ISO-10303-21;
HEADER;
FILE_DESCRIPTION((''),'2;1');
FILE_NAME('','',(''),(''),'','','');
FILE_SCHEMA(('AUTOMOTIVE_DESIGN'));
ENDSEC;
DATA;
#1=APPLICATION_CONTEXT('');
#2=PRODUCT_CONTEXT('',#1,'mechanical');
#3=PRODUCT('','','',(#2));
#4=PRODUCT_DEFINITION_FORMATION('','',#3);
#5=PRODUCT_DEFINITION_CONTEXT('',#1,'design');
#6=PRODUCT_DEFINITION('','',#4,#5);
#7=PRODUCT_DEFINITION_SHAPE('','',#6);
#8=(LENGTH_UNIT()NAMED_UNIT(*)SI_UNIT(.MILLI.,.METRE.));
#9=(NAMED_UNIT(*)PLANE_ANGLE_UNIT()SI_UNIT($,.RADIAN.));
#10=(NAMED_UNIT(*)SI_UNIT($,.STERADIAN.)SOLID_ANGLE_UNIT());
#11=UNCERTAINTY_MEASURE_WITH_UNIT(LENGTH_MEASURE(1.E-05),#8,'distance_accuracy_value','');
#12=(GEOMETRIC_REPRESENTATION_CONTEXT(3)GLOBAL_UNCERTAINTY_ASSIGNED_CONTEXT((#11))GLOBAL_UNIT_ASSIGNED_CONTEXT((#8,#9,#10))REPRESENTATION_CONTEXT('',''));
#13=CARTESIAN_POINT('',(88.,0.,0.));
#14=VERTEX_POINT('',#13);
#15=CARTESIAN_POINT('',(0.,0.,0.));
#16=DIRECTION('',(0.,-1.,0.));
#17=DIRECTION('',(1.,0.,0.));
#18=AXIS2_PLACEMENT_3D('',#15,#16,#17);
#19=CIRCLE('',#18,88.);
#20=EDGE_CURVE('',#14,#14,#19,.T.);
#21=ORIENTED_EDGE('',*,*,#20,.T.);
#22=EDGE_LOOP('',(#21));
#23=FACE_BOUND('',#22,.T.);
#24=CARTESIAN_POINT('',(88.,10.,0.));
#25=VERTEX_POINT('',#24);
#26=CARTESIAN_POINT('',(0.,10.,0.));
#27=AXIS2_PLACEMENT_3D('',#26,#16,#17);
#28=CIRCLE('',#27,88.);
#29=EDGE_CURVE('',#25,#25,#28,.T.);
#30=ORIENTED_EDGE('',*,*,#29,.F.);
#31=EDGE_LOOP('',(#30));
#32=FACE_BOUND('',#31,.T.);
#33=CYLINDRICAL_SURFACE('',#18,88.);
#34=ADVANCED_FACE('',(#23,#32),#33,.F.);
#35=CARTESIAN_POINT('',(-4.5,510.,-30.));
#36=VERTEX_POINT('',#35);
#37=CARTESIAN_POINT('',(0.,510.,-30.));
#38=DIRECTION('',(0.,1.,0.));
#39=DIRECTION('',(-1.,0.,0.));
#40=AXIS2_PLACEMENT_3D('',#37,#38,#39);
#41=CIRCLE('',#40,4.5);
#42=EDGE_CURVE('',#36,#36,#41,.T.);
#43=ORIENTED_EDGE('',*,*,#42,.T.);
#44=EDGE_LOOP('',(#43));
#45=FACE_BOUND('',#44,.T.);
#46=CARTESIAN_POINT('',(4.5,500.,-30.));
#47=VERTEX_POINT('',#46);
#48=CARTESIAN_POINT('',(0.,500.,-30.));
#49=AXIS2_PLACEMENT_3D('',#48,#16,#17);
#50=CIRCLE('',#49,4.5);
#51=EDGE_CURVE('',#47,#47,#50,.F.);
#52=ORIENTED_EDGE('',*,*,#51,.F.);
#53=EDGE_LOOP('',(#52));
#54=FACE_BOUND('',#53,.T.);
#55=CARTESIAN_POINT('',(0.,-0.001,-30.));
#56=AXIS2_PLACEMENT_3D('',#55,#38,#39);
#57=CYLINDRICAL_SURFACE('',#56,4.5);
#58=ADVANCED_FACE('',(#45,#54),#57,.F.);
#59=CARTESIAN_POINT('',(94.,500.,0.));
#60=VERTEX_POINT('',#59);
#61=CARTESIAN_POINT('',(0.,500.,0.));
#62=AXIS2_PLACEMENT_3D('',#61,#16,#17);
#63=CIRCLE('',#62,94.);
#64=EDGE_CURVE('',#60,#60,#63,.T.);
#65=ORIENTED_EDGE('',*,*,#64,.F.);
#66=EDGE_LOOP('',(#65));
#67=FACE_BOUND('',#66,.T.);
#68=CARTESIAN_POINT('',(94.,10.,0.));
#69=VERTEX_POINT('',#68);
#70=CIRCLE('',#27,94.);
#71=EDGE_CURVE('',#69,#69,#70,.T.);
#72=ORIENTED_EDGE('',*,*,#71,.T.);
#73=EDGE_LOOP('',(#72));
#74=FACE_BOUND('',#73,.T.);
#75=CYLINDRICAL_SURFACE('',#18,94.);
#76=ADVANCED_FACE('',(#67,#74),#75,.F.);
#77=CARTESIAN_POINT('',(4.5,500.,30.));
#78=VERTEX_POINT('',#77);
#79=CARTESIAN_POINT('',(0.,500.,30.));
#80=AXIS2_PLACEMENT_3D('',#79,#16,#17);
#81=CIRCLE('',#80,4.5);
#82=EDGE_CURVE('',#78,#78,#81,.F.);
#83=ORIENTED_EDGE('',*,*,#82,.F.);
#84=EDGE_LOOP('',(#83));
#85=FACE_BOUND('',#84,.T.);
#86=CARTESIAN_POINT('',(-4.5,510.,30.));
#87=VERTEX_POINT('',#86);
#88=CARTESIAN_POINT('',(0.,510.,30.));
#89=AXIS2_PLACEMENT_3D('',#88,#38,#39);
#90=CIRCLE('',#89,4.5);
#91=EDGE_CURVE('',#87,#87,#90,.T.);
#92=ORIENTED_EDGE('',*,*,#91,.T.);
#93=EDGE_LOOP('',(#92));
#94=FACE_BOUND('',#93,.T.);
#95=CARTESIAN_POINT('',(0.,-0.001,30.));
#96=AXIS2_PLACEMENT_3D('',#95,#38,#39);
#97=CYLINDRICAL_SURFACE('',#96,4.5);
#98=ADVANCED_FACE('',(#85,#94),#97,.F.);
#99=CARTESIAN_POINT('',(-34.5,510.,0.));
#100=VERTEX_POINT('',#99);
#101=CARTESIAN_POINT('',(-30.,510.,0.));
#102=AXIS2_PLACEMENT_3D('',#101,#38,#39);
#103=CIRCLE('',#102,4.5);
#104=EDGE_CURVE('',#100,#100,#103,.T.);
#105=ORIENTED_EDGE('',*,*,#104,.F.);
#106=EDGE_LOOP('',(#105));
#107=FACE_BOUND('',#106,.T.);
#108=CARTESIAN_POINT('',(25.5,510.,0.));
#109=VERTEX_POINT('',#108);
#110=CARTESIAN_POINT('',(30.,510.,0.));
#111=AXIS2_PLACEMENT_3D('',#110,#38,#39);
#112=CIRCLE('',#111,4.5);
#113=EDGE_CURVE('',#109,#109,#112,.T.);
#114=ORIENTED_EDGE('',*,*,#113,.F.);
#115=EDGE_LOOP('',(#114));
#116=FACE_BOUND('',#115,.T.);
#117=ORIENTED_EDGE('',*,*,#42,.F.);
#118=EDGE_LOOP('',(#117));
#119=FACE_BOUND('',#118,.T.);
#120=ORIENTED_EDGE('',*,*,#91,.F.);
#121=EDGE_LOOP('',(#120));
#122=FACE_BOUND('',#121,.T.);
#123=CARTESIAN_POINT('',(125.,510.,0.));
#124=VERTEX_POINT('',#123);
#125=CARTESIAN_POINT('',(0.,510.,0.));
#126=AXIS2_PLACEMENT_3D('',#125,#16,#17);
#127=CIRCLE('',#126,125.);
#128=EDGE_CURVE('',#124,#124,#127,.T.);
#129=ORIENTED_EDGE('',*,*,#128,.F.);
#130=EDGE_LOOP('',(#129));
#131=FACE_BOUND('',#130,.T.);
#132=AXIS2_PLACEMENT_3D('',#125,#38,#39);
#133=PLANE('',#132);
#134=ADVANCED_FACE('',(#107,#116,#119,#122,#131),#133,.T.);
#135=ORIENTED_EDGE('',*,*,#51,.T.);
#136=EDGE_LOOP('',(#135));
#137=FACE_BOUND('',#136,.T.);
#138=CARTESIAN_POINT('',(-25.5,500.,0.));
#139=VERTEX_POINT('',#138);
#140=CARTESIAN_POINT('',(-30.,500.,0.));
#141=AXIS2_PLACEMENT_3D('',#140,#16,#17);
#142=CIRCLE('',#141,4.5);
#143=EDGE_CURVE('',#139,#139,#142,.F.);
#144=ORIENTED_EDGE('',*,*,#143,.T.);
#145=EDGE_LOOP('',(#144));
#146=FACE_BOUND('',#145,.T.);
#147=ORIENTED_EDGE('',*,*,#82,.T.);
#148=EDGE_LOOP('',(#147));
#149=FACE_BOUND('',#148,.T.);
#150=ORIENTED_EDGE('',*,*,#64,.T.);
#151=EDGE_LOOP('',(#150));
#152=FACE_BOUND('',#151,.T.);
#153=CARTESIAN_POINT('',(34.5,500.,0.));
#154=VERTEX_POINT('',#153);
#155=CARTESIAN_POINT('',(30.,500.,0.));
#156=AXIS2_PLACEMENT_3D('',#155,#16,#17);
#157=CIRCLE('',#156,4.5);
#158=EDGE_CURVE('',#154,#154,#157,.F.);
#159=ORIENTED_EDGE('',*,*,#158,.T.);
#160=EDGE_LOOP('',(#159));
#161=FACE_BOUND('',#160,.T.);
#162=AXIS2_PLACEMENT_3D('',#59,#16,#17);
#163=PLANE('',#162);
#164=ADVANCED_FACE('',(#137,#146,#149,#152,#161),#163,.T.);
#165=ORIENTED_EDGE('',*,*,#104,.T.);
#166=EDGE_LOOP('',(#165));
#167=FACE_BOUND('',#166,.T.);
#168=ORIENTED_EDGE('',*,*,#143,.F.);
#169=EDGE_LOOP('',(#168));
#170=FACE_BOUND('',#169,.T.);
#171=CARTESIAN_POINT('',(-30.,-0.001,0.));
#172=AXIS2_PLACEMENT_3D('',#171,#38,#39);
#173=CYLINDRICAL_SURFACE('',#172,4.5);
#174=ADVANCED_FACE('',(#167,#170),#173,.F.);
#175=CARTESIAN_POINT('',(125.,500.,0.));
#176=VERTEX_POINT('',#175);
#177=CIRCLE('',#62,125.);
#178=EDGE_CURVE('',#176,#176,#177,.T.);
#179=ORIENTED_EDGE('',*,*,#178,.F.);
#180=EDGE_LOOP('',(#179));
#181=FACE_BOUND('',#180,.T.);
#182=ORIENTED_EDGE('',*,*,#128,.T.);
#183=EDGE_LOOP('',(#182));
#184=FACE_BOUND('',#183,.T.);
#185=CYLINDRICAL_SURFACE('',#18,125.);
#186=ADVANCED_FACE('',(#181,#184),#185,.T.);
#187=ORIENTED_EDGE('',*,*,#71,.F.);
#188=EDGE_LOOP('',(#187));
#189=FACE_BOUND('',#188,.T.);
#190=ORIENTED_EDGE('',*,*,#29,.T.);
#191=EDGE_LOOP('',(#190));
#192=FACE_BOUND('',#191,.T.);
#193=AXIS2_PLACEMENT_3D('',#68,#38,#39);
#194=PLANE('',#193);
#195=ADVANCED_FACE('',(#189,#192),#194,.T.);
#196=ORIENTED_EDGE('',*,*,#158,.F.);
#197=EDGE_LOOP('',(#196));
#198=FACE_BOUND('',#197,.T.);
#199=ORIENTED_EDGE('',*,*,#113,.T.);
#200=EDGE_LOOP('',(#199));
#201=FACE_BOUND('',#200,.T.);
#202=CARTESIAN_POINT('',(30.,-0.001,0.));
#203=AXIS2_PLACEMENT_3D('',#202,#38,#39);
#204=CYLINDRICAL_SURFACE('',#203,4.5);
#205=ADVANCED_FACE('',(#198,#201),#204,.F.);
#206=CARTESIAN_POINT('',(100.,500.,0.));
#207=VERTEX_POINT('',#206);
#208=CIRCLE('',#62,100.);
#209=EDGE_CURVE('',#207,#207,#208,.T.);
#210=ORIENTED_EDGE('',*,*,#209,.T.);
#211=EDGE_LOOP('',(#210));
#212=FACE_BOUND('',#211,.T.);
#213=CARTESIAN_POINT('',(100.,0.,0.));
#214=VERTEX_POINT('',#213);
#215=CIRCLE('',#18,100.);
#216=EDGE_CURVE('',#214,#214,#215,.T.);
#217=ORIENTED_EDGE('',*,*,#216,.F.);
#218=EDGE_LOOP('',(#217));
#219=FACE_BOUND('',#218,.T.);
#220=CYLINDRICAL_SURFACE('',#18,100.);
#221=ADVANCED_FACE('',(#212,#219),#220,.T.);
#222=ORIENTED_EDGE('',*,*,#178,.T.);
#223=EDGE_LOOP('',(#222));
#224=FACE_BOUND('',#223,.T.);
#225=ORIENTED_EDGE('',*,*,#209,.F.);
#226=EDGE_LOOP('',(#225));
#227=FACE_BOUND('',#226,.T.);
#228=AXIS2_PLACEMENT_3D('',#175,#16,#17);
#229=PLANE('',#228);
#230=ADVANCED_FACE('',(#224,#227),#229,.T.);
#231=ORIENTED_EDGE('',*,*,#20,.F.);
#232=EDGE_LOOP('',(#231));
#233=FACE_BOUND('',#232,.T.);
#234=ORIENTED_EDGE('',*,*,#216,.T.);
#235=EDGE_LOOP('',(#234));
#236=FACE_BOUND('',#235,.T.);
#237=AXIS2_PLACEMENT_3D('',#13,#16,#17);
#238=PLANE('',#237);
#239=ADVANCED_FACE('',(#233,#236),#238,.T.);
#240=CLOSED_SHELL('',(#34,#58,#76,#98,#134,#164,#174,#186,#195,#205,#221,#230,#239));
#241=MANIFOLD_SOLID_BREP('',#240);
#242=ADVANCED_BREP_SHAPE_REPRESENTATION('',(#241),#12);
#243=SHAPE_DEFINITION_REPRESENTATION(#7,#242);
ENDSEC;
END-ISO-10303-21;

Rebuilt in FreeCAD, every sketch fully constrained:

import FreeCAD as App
import Part
import Sketcher

V = App.Vector


def add_polygon(sketch, points):
    """Adds a closed chain of lines whose ends are joined by coincident constraints."""
    first, n = sketch.GeometryCount, len(points)
    for a, b in zip(points, points[1:] + points[:1]):
        sketch.addGeometry(Part.LineSegment(App.Vector(*a, 0), App.Vector(*b, 0)), False)
    for i in range(n):
        sketch.addConstraint(Sketcher.Constraint("Coincident", first + i, 2, first + (i + 1) % n, 1))

doc = App.newDocument("Part")
body = doc.addObject("PartDesign::Body", "Body")

# Sketch on XY plane
sketch1 = body.newObject("Sketcher::SketchObject", "Sketch")
sketch1.AttachmentSupport = (doc.getObject("XY_Plane"), [""])
sketch1.MapMode = "FlatFace"
add_polygon(sketch1, [(125, 510), (0, 510), (0, 500), (94, 500), (94, 10), (88, 10), (88, 0), (100, 0), (100, 500), (125, 500)])  # lines 0-9
sketch1.addConstraint([
    Sketcher.Constraint("Horizontal", 0),
    Sketcher.Constraint("Vertical", 1),
    Sketcher.Constraint("Horizontal", 2),
    Sketcher.Constraint("Vertical", 3),
    Sketcher.Constraint("Horizontal", 4),
    Sketcher.Constraint("Vertical", 5),
    Sketcher.Constraint("Horizontal", 6),
    Sketcher.Constraint("Vertical", 7),
    Sketcher.Constraint("Horizontal", 8),
    Sketcher.Constraint("Vertical", 9),
    Sketcher.Constraint("PointOnObject", 0, 2, -2),
    Sketcher.Constraint("PointOnObject", 5, 2, -1),
    Sketcher.Constraint("Horizontal", 2, 2, 7, 2),
    Sketcher.Constraint("Equal", 1, 5),
    Sketcher.Constraint("DistanceX", 0, 2, 0, 1, 125.0),
    Sketcher.Constraint("DistanceX", 2, 1, 2, 2, 94.0),
    Sketcher.Constraint("DistanceX", 4, 2, 4, 1, 6.0),
    Sketcher.Constraint("DistanceX", 6, 1, 6, 2, 12.0),
    Sketcher.Constraint("DistanceY", 1, 2, 1, 1, 10.0),
    Sketcher.Constraint("DistanceY", 3, 2, 3, 1, 490.0),
])
revolution = body.newObject("PartDesign::Revolution", "Revolution")
revolution.Profile = sketch1
revolution.ReferenceAxis = (sketch1, ["V_Axis"])
revolution.Angle = 360

# Sketch on XZ plane
sketch2 = body.newObject("Sketcher::SketchObject", "Sketch001")
sketch2.AttachmentSupport = (doc.getObject("XZ_Plane"), [""])
sketch2.MapMode = "FlatFace"
sketch2.AttachmentOffset = App.Placement(V(0, 0, -510), App.Rotation())
sketch2.addGeometry(Part.Circle(V(0, -30, 0), V(0, 0, 1), 4.5), False)
sketch2.addConstraint([
    Sketcher.Constraint("PointOnObject", 0, 3, -2),
    Sketcher.Constraint("Diameter", 0, 9.0),
    Sketcher.Constraint("DistanceY", 0, 3, -1, 1, 30.0),
])
pocket1 = body.newObject("PartDesign::Pocket", "Pocket")
pocket1.Profile = sketch2
pocket1.Type = "UpToFirst"
pocket1.Reversed = True

# Sketch on XZ plane
sketch3 = body.newObject("Sketcher::SketchObject", "Sketch002")
sketch3.AttachmentSupport = (doc.getObject("XZ_Plane"), [""])
sketch3.MapMode = "FlatFace"
sketch3.AttachmentOffset = App.Placement(V(0, 0, -510), App.Rotation())
sketch3.addGeometry(Part.Circle(V(30, 0, 0), V(0, 0, 1), 4.5), False)
sketch3.addConstraint([
    Sketcher.Constraint("PointOnObject", 0, 3, -1),
    Sketcher.Constraint("Diameter", 0, 9.0),
    Sketcher.Constraint("DistanceX", -1, 1, 0, 3, 30.0),
])
pocket2 = body.newObject("PartDesign::Pocket", "Pocket001")
pocket2.Profile = sketch3
pocket2.Type = "UpToFirst"
pocket2.Reversed = True

# Sketch on XZ plane
sketch4 = body.newObject("Sketcher::SketchObject", "Sketch003")
sketch4.AttachmentSupport = (doc.getObject("XZ_Plane"), [""])
sketch4.MapMode = "FlatFace"
sketch4.AttachmentOffset = App.Placement(V(0, 0, -510), App.Rotation())
sketch4.addGeometry(Part.Circle(V(0, 30, 0), V(0, 0, 1), 4.5), False)
sketch4.addConstraint([
    Sketcher.Constraint("PointOnObject", 0, 3, -2),
    Sketcher.Constraint("Diameter", 0, 9.0),
    Sketcher.Constraint("DistanceY", -1, 1, 0, 3, 30.0),
])
pocket3 = body.newObject("PartDesign::Pocket", "Pocket002")
pocket3.Profile = sketch4
pocket3.Type = "UpToFirst"
pocket3.Reversed = True

# Sketch on XZ plane
sketch5 = body.newObject("Sketcher::SketchObject", "Sketch004")
sketch5.AttachmentSupport = (doc.getObject("XZ_Plane"), [""])
sketch5.MapMode = "FlatFace"
sketch5.AttachmentOffset = App.Placement(V(0, 0, -510), App.Rotation())
sketch5.addGeometry(Part.Circle(V(-30, 0, 0), V(0, 0, 1), 4.5), False)
sketch5.addConstraint([
    Sketcher.Constraint("PointOnObject", 0, 3, -1),
    Sketcher.Constraint("Diameter", 0, 9.0),
    Sketcher.Constraint("DistanceX", 0, 3, -1, 1, 30.0),
])
pocket4 = body.newObject("PartDesign::Pocket", "Pocket003")
pocket4.Profile = sketch5
pocket4.Type = "UpToFirst"
pocket4.Reversed = True

doc.recompute()
